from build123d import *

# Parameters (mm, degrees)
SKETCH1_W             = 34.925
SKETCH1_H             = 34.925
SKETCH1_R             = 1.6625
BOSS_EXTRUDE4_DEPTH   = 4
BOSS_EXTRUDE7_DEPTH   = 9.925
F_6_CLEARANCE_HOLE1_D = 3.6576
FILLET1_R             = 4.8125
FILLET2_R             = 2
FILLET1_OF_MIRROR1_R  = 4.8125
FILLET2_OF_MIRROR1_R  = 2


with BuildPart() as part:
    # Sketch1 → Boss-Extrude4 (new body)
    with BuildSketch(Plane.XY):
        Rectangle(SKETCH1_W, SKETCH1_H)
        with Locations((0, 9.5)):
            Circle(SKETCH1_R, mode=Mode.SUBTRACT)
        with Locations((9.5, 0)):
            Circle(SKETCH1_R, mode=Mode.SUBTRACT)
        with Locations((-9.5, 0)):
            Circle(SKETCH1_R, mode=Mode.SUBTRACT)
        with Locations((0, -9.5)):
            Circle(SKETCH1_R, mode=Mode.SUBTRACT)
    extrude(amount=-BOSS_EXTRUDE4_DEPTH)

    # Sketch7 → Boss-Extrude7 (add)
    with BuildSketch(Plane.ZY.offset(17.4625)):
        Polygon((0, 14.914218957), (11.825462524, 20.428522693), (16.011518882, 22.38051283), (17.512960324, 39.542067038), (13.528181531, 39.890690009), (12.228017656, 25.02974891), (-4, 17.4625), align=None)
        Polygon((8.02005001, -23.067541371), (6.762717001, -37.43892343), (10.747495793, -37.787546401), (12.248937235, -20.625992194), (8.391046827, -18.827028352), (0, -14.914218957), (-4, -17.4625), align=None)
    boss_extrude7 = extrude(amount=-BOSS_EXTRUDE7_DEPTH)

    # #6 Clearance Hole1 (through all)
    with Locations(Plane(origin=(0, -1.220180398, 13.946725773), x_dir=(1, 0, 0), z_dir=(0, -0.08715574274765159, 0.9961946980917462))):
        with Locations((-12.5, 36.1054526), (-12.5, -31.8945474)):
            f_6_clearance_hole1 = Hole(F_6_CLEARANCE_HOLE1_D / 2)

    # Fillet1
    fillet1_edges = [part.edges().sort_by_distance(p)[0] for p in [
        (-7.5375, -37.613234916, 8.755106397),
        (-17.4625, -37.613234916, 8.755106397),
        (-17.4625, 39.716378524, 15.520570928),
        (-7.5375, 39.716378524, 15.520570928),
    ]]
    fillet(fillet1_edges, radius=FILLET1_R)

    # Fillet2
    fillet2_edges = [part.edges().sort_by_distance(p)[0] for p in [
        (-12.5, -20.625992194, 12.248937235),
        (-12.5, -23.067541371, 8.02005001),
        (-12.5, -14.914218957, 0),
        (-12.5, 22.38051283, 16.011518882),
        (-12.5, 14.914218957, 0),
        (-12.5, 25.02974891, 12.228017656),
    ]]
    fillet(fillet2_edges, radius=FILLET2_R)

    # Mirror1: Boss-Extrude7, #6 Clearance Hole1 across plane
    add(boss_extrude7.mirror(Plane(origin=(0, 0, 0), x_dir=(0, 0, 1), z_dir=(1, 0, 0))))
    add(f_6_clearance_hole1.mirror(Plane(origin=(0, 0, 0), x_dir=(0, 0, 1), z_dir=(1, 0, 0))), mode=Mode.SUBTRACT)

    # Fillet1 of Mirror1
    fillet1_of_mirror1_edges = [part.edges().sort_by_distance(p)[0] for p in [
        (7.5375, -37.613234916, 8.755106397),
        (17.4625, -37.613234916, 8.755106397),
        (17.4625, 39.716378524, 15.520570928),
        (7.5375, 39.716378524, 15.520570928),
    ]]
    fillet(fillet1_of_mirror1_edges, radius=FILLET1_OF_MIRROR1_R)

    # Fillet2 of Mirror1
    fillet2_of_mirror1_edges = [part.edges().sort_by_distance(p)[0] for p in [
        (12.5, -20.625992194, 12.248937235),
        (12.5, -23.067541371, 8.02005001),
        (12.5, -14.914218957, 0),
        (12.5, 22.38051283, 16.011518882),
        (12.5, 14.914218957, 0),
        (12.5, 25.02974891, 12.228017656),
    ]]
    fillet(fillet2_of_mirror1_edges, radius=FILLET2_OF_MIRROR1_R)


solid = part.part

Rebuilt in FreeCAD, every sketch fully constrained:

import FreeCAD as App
import Part
import Sketcher
from FreeCAD import Vector
Q = App.Units.Quantity


def edges_at(feature, points):
    """Names of the edges that pass closest to the given points."""
    edges = feature.Shape.Edges
    near = lambda p: min(range(len(edges)), key=lambda i: edges[i].distToShape(Part.Vertex(*p))[0])
    return sorted({f"Edge{near(p) + 1}" for p in points})

doc = App.newDocument("Part")
body = doc.addObject("PartDesign::Body", "Body")

# Sketch on XY plane
sketch1 = body.newObject("Sketcher::SketchObject", "Sketch")
sketch1.AttachmentSupport = (doc.getObject("XY_Plane"), [""])
sketch1.MapMode = "FlatFace"
sketch1.addGeometry([
    Part.LineSegment(Vector(-17.5, 17.5, 0), Vector(-17.5, -17.5, 0)),  # 0
    Part.LineSegment(Vector(-17.5, -17.5, 0), Vector(17.5, -17.5, 0)),  # 1
    Part.LineSegment(Vector(17.5, -17.5, 0), Vector(17.5, 17.5, 0)),  # 2
    Part.LineSegment(Vector(17.5, 17.5, 0), Vector(-17.5, 17.5, 0)),  # 3
    Part.Circle(Vector(0, -9.5, 0), Vector(0, 0, 1), 1.7),  # 4
    Part.Circle(Vector(-9.5, 0, 0), Vector(0, 0, 1), 1.7),  # 5
    Part.Circle(Vector(9.5, 0, 0), Vector(0, 0, 1), 1.7),  # 6
    Part.Circle(Vector(0, 9.5, 0), Vector(0, 0, 1), 1.7),  # 7
], False)
sketch1.addConstraint([
    Sketcher.Constraint("Coincident", 0, 2, 1, 1),
    Sketcher.Constraint("Coincident", 1, 2, 2, 1),
    Sketcher.Constraint("Coincident", 2, 2, 3, 1),
    Sketcher.Constraint("Coincident", 3, 2, 0, 1),
    Sketcher.Constraint("Vertical", 0),
    Sketcher.Constraint("Horizontal", 1),
    Sketcher.Constraint("Vertical", 2),
    Sketcher.Constraint("Horizontal", 3),
    Sketcher.Constraint("Equal", 4, 5),
    Sketcher.Constraint("Equal", 5, 6),
    Sketcher.Constraint("Equal", 6, 7),
    Sketcher.Constraint("Symmetric", 5, 3, 6, 3, -1, 1),
    Sketcher.Constraint("Symmetric", 4, 3, 7, 3, -1, 1),
    Sketcher.Constraint("Symmetric", 0, 2, 2, 2, -1, 1),
    Sketcher.Constraint("PointOnObject", 4, 3, -2),
    Sketcher.Constraint("PointOnObject", 5, 3, -1),
    Sketcher.Constraint("Equal", 3, 0),
    Sketcher.Constraint("Diameter", 4, 3.325),
    Sketcher.Constraint("DistanceX", 5, 3, 6, 3, 19.0),
    Sketcher.Constraint("DistanceY", 4, 3, 7, 3, 19.0),
    Sketcher.Constraint("DistanceX", 1, 1, 1, 2, 34.925),
])
pad1 = body.newObject("PartDesign::Pad", "Pad")
pad1.Profile = sketch1
pad1.Length = 4
pad1.Reversed = True

# Sketch on YZ plane
sketch2 = body.newObject("Sketcher::SketchObject", "Sketch001")
sketch2.AttachmentSupport = (doc.getObject("YZ_Plane"), [""])
sketch2.MapMode = "FlatFace"
sketch2.AttachmentOffset = App.Placement(Vector(0, 0, -17.4625), App.Rotation())
sketch2.addGeometry([
    Part.LineSegment(Vector(14.9, 0, 0), Vector(20.4, 11.8, 0)),  # 0
    Part.LineSegment(Vector(20.4, 11.8, 0), Vector(22.4, 16, 0)),  # 1
    Part.LineSegment(Vector(22.4, 16, 0), Vector(39.5, 17.5, 0)),  # 2
    Part.LineSegment(Vector(39.5, 17.5, 0), Vector(39.9, 13.5, 0)),  # 3
    Part.LineSegment(Vector(39.9, 13.5, 0), Vector(25, 12.2, 0)),  # 4
    Part.LineSegment(Vector(25, 12.2, 0), Vector(17.5, -4, 0)),  # 5
    Part.LineSegment(Vector(17.5, -4, 0), Vector(14.9, 0, 0)),  # 6
    Part.LineSegment(Vector(-23.1, 8, 0), Vector(-37.4, 6.8, 0)),  # 7
    Part.LineSegment(Vector(-37.4, 6.8, 0), Vector(-37.8, 10.7, 0)),  # 8
    Part.LineSegment(Vector(-37.8, 10.7, 0), Vector(-20.6, 12.2, 0)),  # 9
    Part.LineSegment(Vector(-20.6, 12.2, 0), Vector(-18.8, 8.4, 0)),  # 10
    Part.LineSegment(Vector(-18.8, 8.4, 0), Vector(-14.9, 0, 0)),  # 11
    Part.LineSegment(Vector(-14.9, 0, 0), Vector(-17.5, -4, 0)),  # 12
    Part.LineSegment(Vector(-17.5, -4, 0), Vector(-23.1, 8, 0)),  # 13
], False)
sketch2.addConstraint([
    Sketcher.Constraint("Coincident", 0, 2, 1, 1),
    Sketcher.Constraint("Coincident", 1, 2, 2, 1),
    Sketcher.Constraint("Coincident", 2, 2, 3, 1),
    Sketcher.Constraint("Coincident", 3, 2, 4, 1),
    Sketcher.Constraint("Coincident", 4, 2, 5, 1),
    Sketcher.Constraint("Coincident", 5, 2, 6, 1),
    Sketcher.Constraint("Coincident", 6, 2, 0, 1),
    Sketcher.Constraint("Coincident", 7, 2, 8, 1),
    Sketcher.Constraint("Coincident", 8, 2, 9, 1),
    Sketcher.Constraint("Coincident", 9, 2, 10, 1),
    Sketcher.Constraint("Coincident", 10, 2, 11, 1),
    Sketcher.Constraint("Coincident", 11, 2, 12, 1),
    Sketcher.Constraint("Coincident", 12, 2, 13, 1),
    Sketcher.Constraint("Coincident", 13, 2, 7, 1),
    Sketcher.Constraint("Symmetric", 6, 2, 11, 2, -1, 1),
    Sketcher.Constraint("Symmetric", 5, 2, 12, 2, -2),
    Sketcher.Constraint("PointOnObject", 6, 2, -1),
    Sketcher.Constraint("Parallel", 0, 1),
    Sketcher.Constraint("Perpendicular", 2, 3),
    Sketcher.Constraint("Perpendicular", 3, 4),
    Sketcher.Constraint("Parallel", 1, 5),
    Sketcher.Constraint("Parallel", 4, 7),
    Sketcher.Constraint("Perpendicular", 7, 8),
    Sketcher.Constraint("Perpendicular", 8, 9),
    Sketcher.Constraint("Parallel", 10, 11),
    Sketcher.Constraint("Parallel", 11, 13),
    Sketcher.Constraint("Equal", 3, 8),
    Sketcher.Constraint("Equal", 2, 9),
    Sketcher.Constraint("Angle", 0, Q("65 deg")),
    Sketcher.Constraint("Angle", 2, Q("5 deg")),
    Sketcher.Constraint("Angle", 10, Q("-65 deg")),
    Sketcher.Constraint("Distance", 3, 4.0),
    Sketcher.Constraint("DistanceY", 5, 2, -1, 1, 4.0),
    Sketcher.Constraint("Angle", 6, Q("122.5 deg")),
    Sketcher.Constraint("DistanceX", -1, 1, 5, 2, 17.4625),
    Sketcher.Constraint("DistanceY", 7, 2, 1, 2, 9.248802),
    Sketcher.Constraint("Distance", 2, 17.227109),
    Sketcher.Constraint("Distance", 10, 4.256711),
    Sketcher.Constraint("DistanceY", -1, 1, 1, 2, 16.011519),
    Sketcher.Constraint("DistanceX", 0, 2, 1, 2, 1.95199),
])
pad2 = body.newObject("PartDesign::Pad", "Pad001")
pad2.Profile = sketch2
pad2.Length = 9.925

# Sketch on an angled plane
sketch3 = body.newObject("Sketcher::SketchObject", "Sketch002")
sketch3.Placement = App.Placement(Vector(0, -1.22018, 13.946726), App.Rotation(Vector(1, 0, 0), Vector(0, 0.996194698, 0.087155743), Vector(0, -0.087155743, 0.996194698), "ZXY"))
sketch3.addGeometry([
    Part.Circle(Vector(-12.5, 36.1, 0), Vector(0, 0, 1), 1.8),
    Part.Circle(Vector(-12.5, -31.9, 0), Vector(0, 0, 1), 1.8),
], False)
sketch3.addConstraint([
    Sketcher.Constraint("Equal", 0, 1),
    Sketcher.Constraint("Vertical", 0, 3, 1, 3),
    Sketcher.Constraint("DistanceY", 1, 3, 0, 3, 68.0),
    Sketcher.Constraint("Diameter", 0, 3.6576),
    Sketcher.Constraint("DistanceX", 0, 3, -1, 1, 12.5),
    Sketcher.Constraint("DistanceY", -1, 1, 0, 3, 36.105453),
])
doc.recompute()
hole = body.newObject("PartDesign::Hole", "Hole")
hole.Profile = sketch3
hole.ThreadType = "None"
hole.Diameter = 3.6576
hole.DepthType = "ThroughAll"
doc.recompute()

fillet = body.newObject("PartDesign::Fillet", "Fillet")
fillet.Base = (hole, edges_at(hole, [
    (-7.537, -37.613, 8.755),
    (-17.462, -37.613, 8.755),
    (-17.462, 39.716, 15.521),
    (-7.537, 39.716, 15.521),
]))
fillet.Radius = 4.8125
doc.recompute()

fillet2 = body.newObject("PartDesign::Fillet", "Fillet001")
fillet2.Base = (fillet, edges_at(fillet, [
    (-12.5, -20.626, 12.249),
    (-12.5, -23.068, 8.02),
    (-12.5, -14.914, 0),
    (-12.5, 22.381, 16.012),
    (-12.5, 14.914, 0),
    (-12.5, 25.03, 12.228),
]))
fillet2.Radius = 2
doc.recompute()

mirrored = body.newObject("PartDesign::Mirrored", "Mirrored")
mirrored.Originals = [pad2, hole]
mirrored.MirrorPlane = (doc.getObject("YZ_Plane"), [""])
body.Tip = mirrored
doc.recompute()

fillet3 = body.newObject("PartDesign::Fillet", "Fillet002")
fillet3.Base = (mirrored, edges_at(mirrored, [
    (7.537, -37.613, 8.755),
    (17.462, -37.613, 8.755),
    (17.462, 39.716, 15.521),
    (7.537, 39.716, 15.521),
]))
fillet3.Radius = 4.8125
doc.recompute()

fillet4 = body.newObject("PartDesign::Fillet", "Fillet003")
fillet4.Base = (fillet3, edges_at(fillet3, [
    (12.5, -20.626, 12.249),
    (12.5, -23.068, 8.02),
    (12.5, -14.914, 0),
    (12.5, 22.381, 16.012),
    (12.5, 14.914, 0),
    (12.5, 25.03, 12.228),
]))
fillet4.Radius = 2

doc.recompute()
